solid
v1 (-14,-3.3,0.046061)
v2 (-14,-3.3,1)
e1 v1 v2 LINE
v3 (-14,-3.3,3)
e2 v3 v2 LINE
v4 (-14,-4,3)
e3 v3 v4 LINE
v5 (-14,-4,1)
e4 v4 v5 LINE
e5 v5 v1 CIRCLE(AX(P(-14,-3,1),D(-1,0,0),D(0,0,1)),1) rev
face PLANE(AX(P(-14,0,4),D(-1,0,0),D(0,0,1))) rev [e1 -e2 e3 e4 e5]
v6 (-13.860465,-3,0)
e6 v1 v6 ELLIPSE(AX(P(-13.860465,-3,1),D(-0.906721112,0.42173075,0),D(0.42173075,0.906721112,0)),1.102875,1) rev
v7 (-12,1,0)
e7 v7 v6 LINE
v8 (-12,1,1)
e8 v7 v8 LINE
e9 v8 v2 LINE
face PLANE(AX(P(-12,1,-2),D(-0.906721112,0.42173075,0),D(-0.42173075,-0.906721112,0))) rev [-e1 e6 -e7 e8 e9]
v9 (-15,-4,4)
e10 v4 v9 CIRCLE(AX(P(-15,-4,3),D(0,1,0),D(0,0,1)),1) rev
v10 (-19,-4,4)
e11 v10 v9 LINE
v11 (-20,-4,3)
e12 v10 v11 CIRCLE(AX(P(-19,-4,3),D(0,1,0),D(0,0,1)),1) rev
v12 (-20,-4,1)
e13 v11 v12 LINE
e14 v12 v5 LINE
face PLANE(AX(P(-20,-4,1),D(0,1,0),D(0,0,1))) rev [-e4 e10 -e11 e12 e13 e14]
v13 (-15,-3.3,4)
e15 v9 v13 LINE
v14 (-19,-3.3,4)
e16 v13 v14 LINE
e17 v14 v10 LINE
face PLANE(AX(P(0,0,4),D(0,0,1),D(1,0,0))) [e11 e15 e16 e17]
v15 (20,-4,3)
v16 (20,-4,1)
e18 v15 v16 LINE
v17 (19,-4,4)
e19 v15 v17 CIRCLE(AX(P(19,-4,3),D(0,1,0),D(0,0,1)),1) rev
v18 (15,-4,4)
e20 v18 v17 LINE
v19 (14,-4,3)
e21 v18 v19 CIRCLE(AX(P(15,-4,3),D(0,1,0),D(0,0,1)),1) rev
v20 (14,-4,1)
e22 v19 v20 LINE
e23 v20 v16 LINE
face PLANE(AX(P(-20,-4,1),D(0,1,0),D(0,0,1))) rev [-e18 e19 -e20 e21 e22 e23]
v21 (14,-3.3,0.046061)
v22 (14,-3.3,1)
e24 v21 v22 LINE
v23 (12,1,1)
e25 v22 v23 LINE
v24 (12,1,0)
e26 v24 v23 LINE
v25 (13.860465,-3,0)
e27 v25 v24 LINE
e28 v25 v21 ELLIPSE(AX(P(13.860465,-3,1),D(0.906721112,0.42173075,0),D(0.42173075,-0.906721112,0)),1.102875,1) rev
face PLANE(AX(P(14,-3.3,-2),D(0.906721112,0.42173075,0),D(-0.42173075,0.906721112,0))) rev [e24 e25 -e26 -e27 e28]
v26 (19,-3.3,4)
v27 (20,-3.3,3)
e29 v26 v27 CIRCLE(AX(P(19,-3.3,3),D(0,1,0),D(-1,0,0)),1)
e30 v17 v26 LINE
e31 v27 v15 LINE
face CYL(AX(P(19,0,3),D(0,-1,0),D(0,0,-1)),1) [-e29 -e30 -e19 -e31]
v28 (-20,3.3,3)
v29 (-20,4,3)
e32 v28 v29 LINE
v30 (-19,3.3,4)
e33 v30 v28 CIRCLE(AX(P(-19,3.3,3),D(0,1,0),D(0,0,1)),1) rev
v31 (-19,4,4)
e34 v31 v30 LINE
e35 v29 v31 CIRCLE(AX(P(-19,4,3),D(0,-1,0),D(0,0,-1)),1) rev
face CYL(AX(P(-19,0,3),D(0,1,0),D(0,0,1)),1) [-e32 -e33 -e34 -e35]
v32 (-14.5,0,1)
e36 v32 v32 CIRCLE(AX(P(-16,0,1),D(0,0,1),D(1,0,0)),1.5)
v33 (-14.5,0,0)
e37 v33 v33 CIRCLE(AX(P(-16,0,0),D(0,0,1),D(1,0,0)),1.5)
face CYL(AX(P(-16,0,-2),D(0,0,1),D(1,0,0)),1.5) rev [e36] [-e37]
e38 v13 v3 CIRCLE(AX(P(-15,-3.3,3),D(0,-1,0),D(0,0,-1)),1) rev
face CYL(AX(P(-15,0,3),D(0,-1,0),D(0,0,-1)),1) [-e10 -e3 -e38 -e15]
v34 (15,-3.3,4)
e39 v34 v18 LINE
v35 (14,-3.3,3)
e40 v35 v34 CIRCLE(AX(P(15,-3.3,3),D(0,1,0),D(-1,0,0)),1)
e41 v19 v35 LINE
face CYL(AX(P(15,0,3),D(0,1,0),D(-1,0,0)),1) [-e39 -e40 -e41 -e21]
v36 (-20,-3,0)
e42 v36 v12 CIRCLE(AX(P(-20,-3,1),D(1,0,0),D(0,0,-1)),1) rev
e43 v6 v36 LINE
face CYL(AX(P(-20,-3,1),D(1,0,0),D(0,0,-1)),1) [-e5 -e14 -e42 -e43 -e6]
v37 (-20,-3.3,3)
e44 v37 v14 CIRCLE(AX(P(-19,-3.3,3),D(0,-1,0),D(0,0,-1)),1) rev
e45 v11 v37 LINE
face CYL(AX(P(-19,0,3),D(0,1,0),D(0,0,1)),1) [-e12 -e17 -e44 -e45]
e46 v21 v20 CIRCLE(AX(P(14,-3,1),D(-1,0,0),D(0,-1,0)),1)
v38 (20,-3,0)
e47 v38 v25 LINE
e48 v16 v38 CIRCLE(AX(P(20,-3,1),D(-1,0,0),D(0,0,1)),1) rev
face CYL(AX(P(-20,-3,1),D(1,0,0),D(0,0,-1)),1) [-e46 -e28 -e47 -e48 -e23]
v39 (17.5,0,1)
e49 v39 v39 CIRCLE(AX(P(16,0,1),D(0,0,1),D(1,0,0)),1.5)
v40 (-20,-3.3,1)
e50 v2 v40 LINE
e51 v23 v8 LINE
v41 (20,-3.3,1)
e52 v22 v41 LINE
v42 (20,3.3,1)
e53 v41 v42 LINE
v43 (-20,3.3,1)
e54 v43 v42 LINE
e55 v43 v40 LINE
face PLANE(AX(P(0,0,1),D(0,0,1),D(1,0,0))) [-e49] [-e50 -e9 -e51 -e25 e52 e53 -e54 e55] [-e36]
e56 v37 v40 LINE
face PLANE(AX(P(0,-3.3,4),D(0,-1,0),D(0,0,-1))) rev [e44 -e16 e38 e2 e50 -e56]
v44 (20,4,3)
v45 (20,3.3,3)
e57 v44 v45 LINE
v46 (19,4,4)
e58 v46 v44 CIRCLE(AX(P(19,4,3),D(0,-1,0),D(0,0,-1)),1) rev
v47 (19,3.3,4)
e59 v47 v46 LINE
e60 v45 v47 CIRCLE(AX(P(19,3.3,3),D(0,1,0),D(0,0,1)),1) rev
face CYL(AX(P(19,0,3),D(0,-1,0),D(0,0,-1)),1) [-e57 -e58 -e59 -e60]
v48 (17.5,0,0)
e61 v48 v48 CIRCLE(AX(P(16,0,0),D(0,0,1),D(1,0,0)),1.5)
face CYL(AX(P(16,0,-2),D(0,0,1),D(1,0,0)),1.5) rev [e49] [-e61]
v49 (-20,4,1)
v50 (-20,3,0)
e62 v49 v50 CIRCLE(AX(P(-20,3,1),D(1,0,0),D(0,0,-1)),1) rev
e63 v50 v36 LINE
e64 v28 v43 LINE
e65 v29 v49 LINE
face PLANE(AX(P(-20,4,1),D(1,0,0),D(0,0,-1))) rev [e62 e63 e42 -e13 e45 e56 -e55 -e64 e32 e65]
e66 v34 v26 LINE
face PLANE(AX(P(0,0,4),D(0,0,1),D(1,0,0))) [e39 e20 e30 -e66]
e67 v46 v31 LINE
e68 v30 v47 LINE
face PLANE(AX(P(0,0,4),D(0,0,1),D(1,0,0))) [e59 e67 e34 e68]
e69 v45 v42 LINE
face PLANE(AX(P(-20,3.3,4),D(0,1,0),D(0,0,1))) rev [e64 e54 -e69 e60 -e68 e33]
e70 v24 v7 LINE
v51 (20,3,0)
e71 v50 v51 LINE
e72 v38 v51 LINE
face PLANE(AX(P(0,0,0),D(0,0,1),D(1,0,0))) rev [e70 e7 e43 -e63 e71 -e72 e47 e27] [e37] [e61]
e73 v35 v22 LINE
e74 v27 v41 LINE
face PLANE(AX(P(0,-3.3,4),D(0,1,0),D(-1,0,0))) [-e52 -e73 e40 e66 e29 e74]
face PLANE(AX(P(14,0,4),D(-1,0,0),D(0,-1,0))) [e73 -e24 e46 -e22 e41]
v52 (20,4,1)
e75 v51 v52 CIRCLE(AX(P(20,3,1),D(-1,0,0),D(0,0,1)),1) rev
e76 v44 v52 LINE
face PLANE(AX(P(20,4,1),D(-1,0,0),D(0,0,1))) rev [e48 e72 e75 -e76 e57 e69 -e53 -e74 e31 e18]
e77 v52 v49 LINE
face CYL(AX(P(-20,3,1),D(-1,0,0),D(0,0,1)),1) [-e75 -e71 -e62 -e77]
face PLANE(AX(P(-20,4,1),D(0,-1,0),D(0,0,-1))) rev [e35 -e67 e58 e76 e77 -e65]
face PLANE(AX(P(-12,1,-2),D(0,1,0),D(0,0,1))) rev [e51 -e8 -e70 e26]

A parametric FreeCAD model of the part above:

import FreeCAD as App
import Part
import Sketcher

V = App.Vector
Q = App.Units.Quantity


def edges_at(feature, points):
    """Names of the edges that pass closest to the given points."""
    edges = feature.Shape.Edges
    near = lambda p: min(range(len(edges)), key=lambda i: edges[i].distToShape(Part.Vertex(*p))[0])
    return sorted({f"Edge{near(p) + 1}" for p in points})

doc = App.newDocument("Part")
body = doc.addObject("PartDesign::Body", "Body")

sketch1 = body.newObject("Sketcher::SketchObject", "Sketch")
sketch1.AttachmentSupport = (doc.getObject("XY_Plane"), [""])
sketch1.MapMode = "FlatFace"
sketch1.addGeometry(Part.LineSegment(V(-20, 4, 0), V(-20, -4, 0)), False)
sketch1.addGeometry(Part.LineSegment(V(-20, -4, 0), V(20, -4, 0)), False)
sketch1.addGeometry(Part.LineSegment(V(20, -4, 0), V(20, 4, 0)), False)
sketch1.addGeometry(Part.LineSegment(V(20, 4, 0), V(-20, 4, 0)), False)
sketch1.addConstraint(Sketcher.Constraint("Coincident", 0, 2, 1, 1))
sketch1.addConstraint(Sketcher.Constraint("Coincident", 1, 2, 2, 1))
sketch1.addConstraint(Sketcher.Constraint("Coincident", 2, 2, 3, 1))
sketch1.addConstraint(Sketcher.Constraint("Coincident", 3, 2, 0, 1))
sketch1.addConstraint(Sketcher.Constraint("Vertical", 0))
sketch1.addConstraint(Sketcher.Constraint("Horizontal", 1))
sketch1.addConstraint(Sketcher.Constraint("Vertical", 2))
sketch1.addConstraint(Sketcher.Constraint("Horizontal", 3))
sketch1.addConstraint(Sketcher.Constraint("Symmetric", 0, 2, 2, 2, -1, 1))
sketch1.addConstraint(Sketcher.Constraint("DistanceX", 1, 1, 1, 2, Q("40 mm")))
sketch1.addConstraint(Sketcher.Constraint("DistanceY", 0, 2, 0, 1, Q("8 mm")))
pad1 = body.newObject("PartDesign::Pad", "Pad")
pad1.Profile = sketch1
pad1.Length = 1

sketch2 = body.newObject("Sketcher::SketchObject", "Sketch001")
sketch2.AttachmentSupport = (doc.getObject("XY_Plane"), [""])
sketch2.MapMode = "FlatFace"
sketch2.AttachmentOffset = App.Placement(V(0, 0, 1), App.Rotation())
sketch2.addGeometry(Part.LineSegment(V(-20, -3.3, 0), V(-20, -4, 0)), False)
sketch2.addGeometry(Part.LineSegment(V(-20, -4, 0), V(-14, -4, 0)), False)
sketch2.addGeometry(Part.LineSegment(V(-14, -4, 0), V(-14, -3.3, 0)), False)
sketch2.addGeometry(Part.LineSegment(V(-14, -3.3, 0), V(-20, -3.3, 0)), False)
sketch2.addGeometry(Part.LineSegment(V(14, -3.3, 0), V(14, -4, 0)), False)
sketch2.addGeometry(Part.LineSegment(V(14, -4, 0), V(20, -4, 0)), False)
sketch2.addGeometry(Part.LineSegment(V(20, -4, 0), V(20, -3.3, 0)), False)
sketch2.addGeometry(Part.LineSegment(V(20, -3.3, 0), V(14, -3.3, 0)), False)
sketch2.addConstraint(Sketcher.Constraint("Coincident", 0, 2, 1, 1))
sketch2.addConstraint(Sketcher.Constraint("Coincident", 1, 2, 2, 1))
sketch2.addConstraint(Sketcher.Constraint("Coincident", 2, 2, 3, 1))
sketch2.addConstraint(Sketcher.Constraint("Coincident", 3, 2, 0, 1))
sketch2.addConstraint(Sketcher.Constraint("Coincident", 4, 2, 5, 1))
sketch2.addConstraint(Sketcher.Constraint("Coincident", 5, 2, 6, 1))
sketch2.addConstraint(Sketcher.Constraint("Coincident", 6, 2, 7, 1))
sketch2.addConstraint(Sketcher.Constraint("Coincident", 7, 2, 4, 1))
sketch2.addConstraint(Sketcher.Constraint("Vertical", 0))
sketch2.addConstraint(Sketcher.Constraint("Horizontal", 1))
sketch2.addConstraint(Sketcher.Constraint("Vertical", 2))
sketch2.addConstraint(Sketcher.Constraint("Horizontal", 3))
sketch2.addConstraint(Sketcher.Constraint("Vertical", 4))
sketch2.addConstraint(Sketcher.Constraint("Horizontal", 5))
sketch2.addConstraint(Sketcher.Constraint("Vertical", 6))
sketch2.addConstraint(Sketcher.Constraint("Horizontal", 7))
sketch2.addConstraint(Sketcher.Constraint("Symmetric", 1, 2, 4, 2, -2))
sketch2.addConstraint(Sketcher.Constraint("Symmetric", 3, 2, 6, 2, -2))
sketch2.addConstraint(Sketcher.Constraint("DistanceX", 1, 1, 1, 2, Q("6 mm")))
sketch2.addConstraint(Sketcher.Constraint("DistanceY", 0, 2, 0, 1, Q("0.7 mm")))
sketch2.addConstraint(Sketcher.Constraint("DistanceX", 0, 2, -1, 1, Q("20 mm")))
sketch2.addConstraint(Sketcher.Constraint("DistanceY", 0, 2, -1, 1, Q("4 mm")))
pad2 = body.newObject("PartDesign::Pad", "Pad001")
pad2.Profile = sketch2
pad2.Length = 3

sketch3 = body.newObject("Sketcher::SketchObject", "Sketch002")
sketch3.AttachmentSupport = (doc.getObject("XY_Plane"), [""])
sketch3.MapMode = "FlatFace"
sketch3.AttachmentOffset = App.Placement(V(0, 0, 1), App.Rotation())
sketch3.addGeometry(Part.LineSegment(V(-20, 4, 0), V(-20, 3.3, 0)), False)
sketch3.addGeometry(Part.LineSegment(V(-20, 3.3, 0), V(20, 3.3, 0)), False)
sketch3.addGeometry(Part.LineSegment(V(20, 3.3, 0), V(20, 4, 0)), False)
sketch3.addGeometry(Part.LineSegment(V(20, 4, 0), V(-20, 4, 0)), False)
sketch3.addConstraint(Sketcher.Constraint("Coincident", 0, 2, 1, 1))
sketch3.addConstraint(Sketcher.Constraint("Coincident", 1, 2, 2, 1))
sketch3.addConstraint(Sketcher.Constraint("Coincident", 2, 2, 3, 1))
sketch3.addConstraint(Sketcher.Constraint("Coincident", 3, 2, 0, 1))
sketch3.addConstraint(Sketcher.Constraint("Vertical", 0))
sketch3.addConstraint(Sketcher.Constraint("Horizontal", 1))
sketch3.addConstraint(Sketcher.Constraint("Vertical", 2))
sketch3.addConstraint(Sketcher.Constraint("Horizontal", 3))
sketch3.addConstraint(Sketcher.Constraint("DistanceX", 1, 1, 1, 2, Q("40 mm")))
sketch3.addConstraint(Sketcher.Constraint("DistanceY", 0, 2, 0, 1, Q("0.7 mm")))
sketch3.addConstraint(Sketcher.Constraint("DistanceX", 0, 2, -1, 1, Q("20 mm")))
sketch3.addConstraint(Sketcher.Constraint("DistanceY", -1, 1, 2, 2, Q("4 mm")))
pad3 = body.newObject("PartDesign::Pad", "Pad002")
pad3.Profile = sketch3
pad3.Length = 3

sketch4 = body.newObject("Sketcher::SketchObject", "Sketch003")
sketch4.AttachmentSupport = (doc.getObject("XY_Plane"), [""])
sketch4.MapMode = "FlatFace"
sketch4.AttachmentOffset = App.Placement(V(0, 0, 1), App.Rotation())
sketch4.addGeometry(Part.LineSegment(V(12, 1, 0), V(-12, 1, 0)), False)
sketch4.addGeometry(Part.LineSegment(V(-12, 1, 0), V(-14, -3.3, 0)), False)
sketch4.addGeometry(Part.LineSegment(V(-14, -3.3, 0), V(-14, -4, 0)), False)
sketch4.addGeometry(Part.LineSegment(V(-14, -4, 0), V(14, -4, 0)), False)
sketch4.addGeometry(Part.LineSegment(V(14, -4, 0), V(14, -3.3, 0)), False)
sketch4.addGeometry(Part.LineSegment(V(14, -3.3, 0), V(12, 1, 0)), False)
sketch4.addConstraint(Sketcher.Constraint("Coincident", 0, 2, 1, 1))
sketch4.addConstraint(Sketcher.Constraint("Coincident", 1, 2, 2, 1))
sketch4.addConstraint(Sketcher.Constraint("Coincident", 2, 2, 3, 1))
sketch4.addConstraint(Sketcher.Constraint("Coincident", 3, 2, 4, 1))
sketch4.addConstraint(Sketcher.Constraint("Coincident", 4, 2, 5, 1))
sketch4.addConstraint(Sketcher.Constraint("Coincident", 5, 2, 0, 1))
sketch4.addConstraint(Sketcher.Constraint("Horizontal", 0))
sketch4.addConstraint(Sketcher.Constraint("Vertical", 2))
sketch4.addConstraint(Sketcher.Constraint("Horizontal", 3))
sketch4.addConstraint(Sketcher.Constraint("Vertical", 4))
sketch4.addConstraint(Sketcher.Constraint("Symmetric", 1, 2, 4, 2, -2))
sketch4.addConstraint(Sketcher.Constraint("Equal", 1, 5))
sketch4.addConstraint(Sketcher.Constraint("DistanceX", 0, 2, 0, 1, Q("24 mm")))
sketch4.addConstraint(Sketcher.Constraint("DistanceX", 3, 1, 3, 2, Q("28 mm")))
sketch4.addConstraint(Sketcher.Constraint("DistanceY", 2, 2, 2, 1, Q("0.7 mm")))
sketch4.addConstraint(Sketcher.Constraint("DistanceY", -1, 1, 0, 2, Q("1 mm")))
sketch4.addConstraint(Sketcher.Constraint("DistanceY", 2, 2, -1, 1, Q("4 mm")))
pocket1 = body.newObject("PartDesign::Pocket", "Pocket")
pocket1.Profile = sketch4
pocket1.Length = 3

sketch5 = body.newObject("Sketcher::SketchObject", "Sketch004")
sketch5.AttachmentSupport = (doc.getObject("XY_Plane"), [""])
sketch5.MapMode = "FlatFace"
sketch5.AttachmentOffset = App.Placement(V(0, 0, 1), App.Rotation())
sketch5.addGeometry(Part.Circle(V(16, 0, 0), V(0, 0, 1), 1.5), False)
sketch5.addGeometry(Part.Circle(V(-16, 0, 0), V(0, 0, 1), 1.5), False)
sketch5.addConstraint(Sketcher.Constraint("Equal", 0, 1))
sketch5.addConstraint(Sketcher.Constraint("Symmetric", 0, 3, 1, 3, -1, 1))
sketch5.addConstraint(Sketcher.Constraint("PointOnObject", 0, 3, -1))
sketch5.addConstraint(Sketcher.Constraint("Diameter", 0, Q("3 mm")))
sketch5.addConstraint(Sketcher.Constraint("DistanceX", -1, 1, 0, 3, Q("16 mm")))
pocket2 = body.newObject("PartDesign::Pocket", "Pocket001")
pocket2.Profile = sketch5
pocket2.Length = 3
doc.recompute()

fillet = body.newObject("PartDesign::Fillet", "Fillet")
fillet.Base = (pocket2, edges_at(pocket2, [
    (-14, -3.65, 4),
    (-20, -3.65, 4),
    (14, -3.65, 4),
    (20, -3.65, 4),
    (20, 3.65, 4),
    (-20, 3.65, 4),
    (17, -4, 0),
    (-17, -4, 0),
    (0, 4, 0),
]))
fillet.Radius = 1

doc.recompute()
